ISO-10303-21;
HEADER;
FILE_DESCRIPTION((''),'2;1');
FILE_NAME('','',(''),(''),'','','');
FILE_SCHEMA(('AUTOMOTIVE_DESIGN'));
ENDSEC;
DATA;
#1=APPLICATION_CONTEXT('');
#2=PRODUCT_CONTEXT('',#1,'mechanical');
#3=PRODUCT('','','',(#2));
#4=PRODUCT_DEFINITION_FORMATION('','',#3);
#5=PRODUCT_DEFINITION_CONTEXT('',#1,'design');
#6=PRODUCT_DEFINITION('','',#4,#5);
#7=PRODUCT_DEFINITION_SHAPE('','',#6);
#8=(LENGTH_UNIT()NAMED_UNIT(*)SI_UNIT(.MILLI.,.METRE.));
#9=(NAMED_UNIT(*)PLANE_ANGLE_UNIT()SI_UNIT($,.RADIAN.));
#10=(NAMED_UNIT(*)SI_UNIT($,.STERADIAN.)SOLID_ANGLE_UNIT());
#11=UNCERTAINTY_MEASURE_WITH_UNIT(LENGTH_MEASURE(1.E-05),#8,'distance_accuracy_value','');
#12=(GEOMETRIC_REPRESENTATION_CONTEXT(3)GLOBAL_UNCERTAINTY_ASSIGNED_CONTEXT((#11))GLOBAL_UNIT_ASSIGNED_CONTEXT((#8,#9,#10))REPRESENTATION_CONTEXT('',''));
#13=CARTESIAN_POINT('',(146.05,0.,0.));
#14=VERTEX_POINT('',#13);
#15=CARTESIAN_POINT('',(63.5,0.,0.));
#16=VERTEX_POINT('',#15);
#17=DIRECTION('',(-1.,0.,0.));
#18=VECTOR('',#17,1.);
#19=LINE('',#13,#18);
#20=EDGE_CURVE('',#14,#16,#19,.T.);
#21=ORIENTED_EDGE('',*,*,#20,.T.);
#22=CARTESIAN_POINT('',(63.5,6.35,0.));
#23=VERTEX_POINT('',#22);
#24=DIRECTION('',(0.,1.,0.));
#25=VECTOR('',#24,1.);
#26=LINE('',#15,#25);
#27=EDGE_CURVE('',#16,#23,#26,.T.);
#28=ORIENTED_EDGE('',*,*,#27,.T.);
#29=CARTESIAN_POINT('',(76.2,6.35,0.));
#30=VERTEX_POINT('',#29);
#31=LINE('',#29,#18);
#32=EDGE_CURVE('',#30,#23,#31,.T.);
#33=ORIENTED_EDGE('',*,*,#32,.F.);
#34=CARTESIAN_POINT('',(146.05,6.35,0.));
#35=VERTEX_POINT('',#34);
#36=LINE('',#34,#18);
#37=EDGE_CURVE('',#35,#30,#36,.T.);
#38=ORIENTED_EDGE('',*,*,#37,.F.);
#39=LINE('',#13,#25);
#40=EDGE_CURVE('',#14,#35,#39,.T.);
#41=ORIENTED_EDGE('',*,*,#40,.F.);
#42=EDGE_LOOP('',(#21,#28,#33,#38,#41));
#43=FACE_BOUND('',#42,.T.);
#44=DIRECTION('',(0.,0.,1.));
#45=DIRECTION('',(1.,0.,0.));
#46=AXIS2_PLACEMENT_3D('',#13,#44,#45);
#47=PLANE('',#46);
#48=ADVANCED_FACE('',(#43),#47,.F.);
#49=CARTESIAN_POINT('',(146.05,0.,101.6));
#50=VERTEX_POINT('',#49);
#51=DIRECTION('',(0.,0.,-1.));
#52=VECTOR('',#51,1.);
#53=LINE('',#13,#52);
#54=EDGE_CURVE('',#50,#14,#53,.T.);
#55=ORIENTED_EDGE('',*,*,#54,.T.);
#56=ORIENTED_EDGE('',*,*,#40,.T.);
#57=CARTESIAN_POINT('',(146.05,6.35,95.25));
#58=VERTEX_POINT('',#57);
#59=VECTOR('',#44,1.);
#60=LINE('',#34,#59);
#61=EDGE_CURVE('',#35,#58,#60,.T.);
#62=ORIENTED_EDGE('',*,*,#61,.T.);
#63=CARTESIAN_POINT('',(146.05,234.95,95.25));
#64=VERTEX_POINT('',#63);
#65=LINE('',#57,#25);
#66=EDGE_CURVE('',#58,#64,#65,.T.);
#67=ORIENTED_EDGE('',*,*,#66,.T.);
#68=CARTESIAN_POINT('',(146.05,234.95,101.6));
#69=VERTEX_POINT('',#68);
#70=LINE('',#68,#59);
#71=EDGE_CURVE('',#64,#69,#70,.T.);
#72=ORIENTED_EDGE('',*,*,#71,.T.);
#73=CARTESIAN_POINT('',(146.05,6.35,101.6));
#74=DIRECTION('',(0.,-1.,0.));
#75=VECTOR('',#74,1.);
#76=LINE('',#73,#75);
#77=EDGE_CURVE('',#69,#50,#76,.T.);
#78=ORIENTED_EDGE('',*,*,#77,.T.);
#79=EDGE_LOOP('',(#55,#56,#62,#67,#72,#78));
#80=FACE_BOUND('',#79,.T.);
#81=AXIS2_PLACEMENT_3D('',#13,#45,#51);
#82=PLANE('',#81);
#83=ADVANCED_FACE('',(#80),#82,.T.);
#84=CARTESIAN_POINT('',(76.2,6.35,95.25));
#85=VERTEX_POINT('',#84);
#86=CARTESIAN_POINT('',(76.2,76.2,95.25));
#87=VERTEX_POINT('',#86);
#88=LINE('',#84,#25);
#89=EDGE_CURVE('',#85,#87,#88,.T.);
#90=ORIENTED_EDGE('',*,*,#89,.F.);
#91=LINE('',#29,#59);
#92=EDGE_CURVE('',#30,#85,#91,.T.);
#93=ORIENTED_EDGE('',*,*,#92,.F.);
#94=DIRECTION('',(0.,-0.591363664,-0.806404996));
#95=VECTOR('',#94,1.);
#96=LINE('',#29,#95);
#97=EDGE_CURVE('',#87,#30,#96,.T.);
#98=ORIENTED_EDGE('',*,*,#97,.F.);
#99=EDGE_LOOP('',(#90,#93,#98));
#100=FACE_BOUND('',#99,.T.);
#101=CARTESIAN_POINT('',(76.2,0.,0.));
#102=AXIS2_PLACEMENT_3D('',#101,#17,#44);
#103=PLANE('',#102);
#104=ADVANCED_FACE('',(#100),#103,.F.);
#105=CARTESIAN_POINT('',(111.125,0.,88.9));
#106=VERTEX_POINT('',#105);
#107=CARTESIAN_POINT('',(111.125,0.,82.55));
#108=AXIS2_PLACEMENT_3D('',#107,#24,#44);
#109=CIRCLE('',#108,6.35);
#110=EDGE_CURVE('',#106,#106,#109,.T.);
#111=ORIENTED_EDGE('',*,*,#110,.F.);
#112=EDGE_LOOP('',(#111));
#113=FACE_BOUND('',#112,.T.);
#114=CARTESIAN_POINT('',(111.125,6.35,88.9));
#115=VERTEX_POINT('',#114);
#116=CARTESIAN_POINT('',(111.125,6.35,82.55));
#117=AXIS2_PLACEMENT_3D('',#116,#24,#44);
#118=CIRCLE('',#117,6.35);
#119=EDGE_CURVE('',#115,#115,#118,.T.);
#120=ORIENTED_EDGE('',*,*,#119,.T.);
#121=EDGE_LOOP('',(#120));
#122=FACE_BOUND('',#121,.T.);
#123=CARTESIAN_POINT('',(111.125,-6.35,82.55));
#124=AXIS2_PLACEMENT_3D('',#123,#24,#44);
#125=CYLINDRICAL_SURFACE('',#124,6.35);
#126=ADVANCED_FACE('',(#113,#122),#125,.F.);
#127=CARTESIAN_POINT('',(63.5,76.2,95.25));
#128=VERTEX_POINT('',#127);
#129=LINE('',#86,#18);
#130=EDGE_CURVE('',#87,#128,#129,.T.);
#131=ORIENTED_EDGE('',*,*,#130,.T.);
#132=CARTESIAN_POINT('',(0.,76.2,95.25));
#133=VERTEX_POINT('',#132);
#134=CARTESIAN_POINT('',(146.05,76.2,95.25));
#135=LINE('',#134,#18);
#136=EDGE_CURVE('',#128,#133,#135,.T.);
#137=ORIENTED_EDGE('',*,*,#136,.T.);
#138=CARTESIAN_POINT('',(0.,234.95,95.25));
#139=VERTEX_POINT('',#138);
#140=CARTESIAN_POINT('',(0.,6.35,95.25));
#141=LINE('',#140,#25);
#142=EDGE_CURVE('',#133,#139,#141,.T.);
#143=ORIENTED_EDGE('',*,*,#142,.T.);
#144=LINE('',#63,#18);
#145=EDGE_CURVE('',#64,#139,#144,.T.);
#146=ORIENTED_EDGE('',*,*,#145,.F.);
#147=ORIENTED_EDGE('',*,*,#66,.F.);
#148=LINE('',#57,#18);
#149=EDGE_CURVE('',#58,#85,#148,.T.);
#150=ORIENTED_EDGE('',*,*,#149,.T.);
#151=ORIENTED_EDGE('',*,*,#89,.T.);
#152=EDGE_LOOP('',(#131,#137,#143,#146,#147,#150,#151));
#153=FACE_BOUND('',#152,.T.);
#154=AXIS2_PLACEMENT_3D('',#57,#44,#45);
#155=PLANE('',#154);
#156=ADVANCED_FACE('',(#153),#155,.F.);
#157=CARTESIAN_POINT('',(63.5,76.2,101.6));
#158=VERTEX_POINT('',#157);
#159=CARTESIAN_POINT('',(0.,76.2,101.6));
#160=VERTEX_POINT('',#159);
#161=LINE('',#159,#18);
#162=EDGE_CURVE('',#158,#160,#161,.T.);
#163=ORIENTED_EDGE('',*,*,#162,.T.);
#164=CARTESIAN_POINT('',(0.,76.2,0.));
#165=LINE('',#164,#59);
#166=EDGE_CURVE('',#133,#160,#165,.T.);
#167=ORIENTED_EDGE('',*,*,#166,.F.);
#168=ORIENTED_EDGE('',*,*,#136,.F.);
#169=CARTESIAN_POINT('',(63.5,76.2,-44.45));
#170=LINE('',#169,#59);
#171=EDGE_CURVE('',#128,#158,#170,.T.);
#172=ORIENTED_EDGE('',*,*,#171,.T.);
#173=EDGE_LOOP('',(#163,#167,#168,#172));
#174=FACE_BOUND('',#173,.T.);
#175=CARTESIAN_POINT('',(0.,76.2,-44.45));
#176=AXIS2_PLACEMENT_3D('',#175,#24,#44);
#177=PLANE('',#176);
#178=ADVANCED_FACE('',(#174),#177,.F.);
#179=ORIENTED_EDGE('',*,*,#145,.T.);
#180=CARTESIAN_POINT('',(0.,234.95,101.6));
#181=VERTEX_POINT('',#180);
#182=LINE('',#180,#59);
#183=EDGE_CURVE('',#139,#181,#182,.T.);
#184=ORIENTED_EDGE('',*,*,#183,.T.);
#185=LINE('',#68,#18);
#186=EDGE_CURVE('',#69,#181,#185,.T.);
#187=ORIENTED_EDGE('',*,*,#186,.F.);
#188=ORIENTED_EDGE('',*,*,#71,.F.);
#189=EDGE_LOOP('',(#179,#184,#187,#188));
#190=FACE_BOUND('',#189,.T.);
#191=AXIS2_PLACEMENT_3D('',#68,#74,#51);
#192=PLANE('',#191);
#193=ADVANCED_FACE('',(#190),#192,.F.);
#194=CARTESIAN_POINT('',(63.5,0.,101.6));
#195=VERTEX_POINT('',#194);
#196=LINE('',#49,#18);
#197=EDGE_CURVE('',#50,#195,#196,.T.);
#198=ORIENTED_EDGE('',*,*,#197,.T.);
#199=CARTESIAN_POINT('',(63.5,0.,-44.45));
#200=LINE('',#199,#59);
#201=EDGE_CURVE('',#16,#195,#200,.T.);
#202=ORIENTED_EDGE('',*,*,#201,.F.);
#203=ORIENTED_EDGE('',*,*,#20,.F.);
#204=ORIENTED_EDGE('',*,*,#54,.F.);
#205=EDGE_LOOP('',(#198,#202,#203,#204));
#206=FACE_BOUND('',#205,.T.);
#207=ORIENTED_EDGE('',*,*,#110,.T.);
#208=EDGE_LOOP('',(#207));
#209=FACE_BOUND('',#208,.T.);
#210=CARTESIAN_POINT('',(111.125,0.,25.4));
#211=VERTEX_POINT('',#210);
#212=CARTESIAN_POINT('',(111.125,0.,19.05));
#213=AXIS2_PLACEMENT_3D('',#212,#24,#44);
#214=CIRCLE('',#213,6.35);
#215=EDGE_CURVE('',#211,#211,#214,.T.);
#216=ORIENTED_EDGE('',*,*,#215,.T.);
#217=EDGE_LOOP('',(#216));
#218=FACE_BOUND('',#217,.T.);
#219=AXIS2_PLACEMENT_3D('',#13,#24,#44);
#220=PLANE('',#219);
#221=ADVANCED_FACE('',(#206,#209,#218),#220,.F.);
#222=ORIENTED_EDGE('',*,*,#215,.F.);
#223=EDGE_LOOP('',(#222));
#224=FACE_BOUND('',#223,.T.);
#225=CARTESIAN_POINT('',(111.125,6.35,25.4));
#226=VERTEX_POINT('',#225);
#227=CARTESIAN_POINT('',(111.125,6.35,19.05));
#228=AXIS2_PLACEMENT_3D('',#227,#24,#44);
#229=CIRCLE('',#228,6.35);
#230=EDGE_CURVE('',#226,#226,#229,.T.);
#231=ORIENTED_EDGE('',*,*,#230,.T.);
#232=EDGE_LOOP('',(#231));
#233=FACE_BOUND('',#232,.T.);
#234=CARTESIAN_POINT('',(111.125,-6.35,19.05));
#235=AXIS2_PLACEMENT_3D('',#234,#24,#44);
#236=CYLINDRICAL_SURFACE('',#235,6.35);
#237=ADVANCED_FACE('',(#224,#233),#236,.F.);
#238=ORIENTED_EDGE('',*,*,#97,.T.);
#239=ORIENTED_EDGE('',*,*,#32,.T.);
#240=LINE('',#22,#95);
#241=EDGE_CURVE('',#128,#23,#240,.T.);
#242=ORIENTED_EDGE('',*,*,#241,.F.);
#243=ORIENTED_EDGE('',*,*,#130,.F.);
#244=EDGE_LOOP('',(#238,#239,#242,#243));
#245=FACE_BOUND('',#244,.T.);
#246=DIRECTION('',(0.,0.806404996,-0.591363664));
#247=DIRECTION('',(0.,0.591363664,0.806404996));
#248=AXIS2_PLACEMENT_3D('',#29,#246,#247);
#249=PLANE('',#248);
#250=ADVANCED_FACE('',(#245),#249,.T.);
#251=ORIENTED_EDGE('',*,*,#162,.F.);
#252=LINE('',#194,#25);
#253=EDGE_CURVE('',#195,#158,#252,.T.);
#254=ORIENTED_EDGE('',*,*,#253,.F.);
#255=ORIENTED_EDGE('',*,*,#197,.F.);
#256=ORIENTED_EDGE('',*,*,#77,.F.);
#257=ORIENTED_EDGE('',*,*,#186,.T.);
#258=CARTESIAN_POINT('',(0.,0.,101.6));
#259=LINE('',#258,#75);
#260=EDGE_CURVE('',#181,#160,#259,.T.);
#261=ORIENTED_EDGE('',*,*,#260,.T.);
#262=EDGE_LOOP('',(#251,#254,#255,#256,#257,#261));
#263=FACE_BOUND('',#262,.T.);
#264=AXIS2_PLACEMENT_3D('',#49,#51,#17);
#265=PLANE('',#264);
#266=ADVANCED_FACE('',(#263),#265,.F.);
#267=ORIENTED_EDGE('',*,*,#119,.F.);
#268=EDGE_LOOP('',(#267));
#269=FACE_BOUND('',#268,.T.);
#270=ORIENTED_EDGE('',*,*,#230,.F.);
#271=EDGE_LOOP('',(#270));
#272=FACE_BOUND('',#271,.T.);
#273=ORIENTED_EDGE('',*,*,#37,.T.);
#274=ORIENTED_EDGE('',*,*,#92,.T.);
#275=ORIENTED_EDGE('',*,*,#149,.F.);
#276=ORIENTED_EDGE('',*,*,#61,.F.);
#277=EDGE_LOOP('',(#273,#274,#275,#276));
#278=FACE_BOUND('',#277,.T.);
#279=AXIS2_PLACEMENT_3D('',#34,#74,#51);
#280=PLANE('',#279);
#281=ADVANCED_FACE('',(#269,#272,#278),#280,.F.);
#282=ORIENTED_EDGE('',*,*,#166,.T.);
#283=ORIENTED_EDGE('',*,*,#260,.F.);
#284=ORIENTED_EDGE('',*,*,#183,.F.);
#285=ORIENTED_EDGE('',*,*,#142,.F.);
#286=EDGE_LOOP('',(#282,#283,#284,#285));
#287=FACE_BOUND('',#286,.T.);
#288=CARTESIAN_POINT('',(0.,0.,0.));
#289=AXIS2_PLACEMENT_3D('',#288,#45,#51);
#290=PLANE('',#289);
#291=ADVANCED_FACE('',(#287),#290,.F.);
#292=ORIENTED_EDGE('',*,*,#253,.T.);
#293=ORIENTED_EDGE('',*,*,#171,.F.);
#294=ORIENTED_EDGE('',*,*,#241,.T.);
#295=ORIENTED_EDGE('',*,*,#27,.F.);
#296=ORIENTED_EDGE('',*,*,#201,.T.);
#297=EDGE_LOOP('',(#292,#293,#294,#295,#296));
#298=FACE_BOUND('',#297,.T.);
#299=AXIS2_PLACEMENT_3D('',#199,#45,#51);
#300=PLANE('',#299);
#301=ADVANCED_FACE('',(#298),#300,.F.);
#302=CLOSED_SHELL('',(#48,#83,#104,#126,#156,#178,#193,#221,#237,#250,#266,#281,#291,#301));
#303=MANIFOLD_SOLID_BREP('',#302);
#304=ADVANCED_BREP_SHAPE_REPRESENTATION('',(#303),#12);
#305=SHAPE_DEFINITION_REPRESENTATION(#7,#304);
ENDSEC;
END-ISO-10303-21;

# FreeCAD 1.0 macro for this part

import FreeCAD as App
import Part
import Sketcher
from FreeCAD import Vector
Q = App.Units.Quantity


def add_polygon(sketch, points):
    """Adds a closed chain of lines whose ends are joined by coincident constraints."""
    first, n = sketch.GeometryCount, len(points)
    for a, b in zip(points, points[1:] + points[:1]):
        sketch.addGeometry(Part.LineSegment(App.Vector(*a, 0), App.Vector(*b, 0)), False)
    for i in range(n):
        sketch.addConstraint(Sketcher.Constraint("Coincident", first + i, 2, first + (i + 1) % n, 1))

doc = App.newDocument("Part")
body = doc.addObject("PartDesign::Body", "Body")

sketch1 = body.newObject("Sketcher::SketchObject", "Sketch")
sketch1.AttachmentSupport = (doc.getObject("YZ_Plane"), [""])
sketch1.MapMode = "FlatFace"
add_polygon(sketch1, [(0, 102), (0, 0), (6, 0), (6, 95), (235, 95), (235, 102)])
sketch1.addConstraint(Sketcher.Constraint("Vertical", 0))
sketch1.addConstraint(Sketcher.Constraint("Horizontal", 1))
sketch1.addConstraint(Sketcher.Constraint("Vertical", 2))
sketch1.addConstraint(Sketcher.Constraint("Horizontal", 3))
sketch1.addConstraint(Sketcher.Constraint("Vertical", 4))
sketch1.addConstraint(Sketcher.Constraint("Horizontal", 5))
sketch1.addConstraint(Sketcher.Constraint("Coincident", 0, 2, -1, 1))
sketch1.addConstraint(Sketcher.Constraint("Equal", 1, 4))
sketch1.addConstraint(Sketcher.Constraint("DistanceX", 3, 1, 3, 2, Q("9 in")))
sketch1.addConstraint(Sketcher.Constraint("DistanceY", 0, 2, 0, 1, Q("4 in")))
sketch1.addConstraint(Sketcher.Constraint("DistanceX", 1, 1, 1, 2, Q("0.25 in")))
pad1 = body.newObject("PartDesign::Pad", "Pad")
pad1.Profile = sketch1
pad1.Length = Q("5.75 in")

sketch2 = body.newObject("Sketcher::SketchObject", "Sketch001")
sketch2.AttachmentSupport = (doc.getObject("XY_Plane"), [""])
sketch2.MapMode = "FlatFace"
sketch2.AttachmentOffset = App.Placement(Vector(0, 0, 4 * 25.4), App.Rotation())
add_polygon(sketch2, [(0, 76), (0, 0), (64, 0), (64, 76)])
sketch2.addConstraint(Sketcher.Constraint("Vertical", 0))
sketch2.addConstraint(Sketcher.Constraint("Horizontal", 1))
sketch2.addConstraint(Sketcher.Constraint("Vertical", 2))
sketch2.addConstraint(Sketcher.Constraint("Horizontal", 3))
sketch2.addConstraint(Sketcher.Constraint("Coincident", 0, 2, -1, 1))
sketch2.addConstraint(Sketcher.Constraint("DistanceY", 0, 2, 0, 1, Q("3 in")))
sketch2.addConstraint(Sketcher.Constraint("DistanceX", 1, 1, 1, 2, Q("2.5 in")))
pocket1 = body.newObject("PartDesign::Pocket", "Pocket")
pocket1.Profile = sketch2
pocket1.Length = Q("5.75 in")

sketch3 = body.newObject("Sketcher::SketchObject", "Sketch002")
sketch3.AttachmentSupport = (doc.getObject("YZ_Plane"), [""])
sketch3.MapMode = "FlatFace"
sketch3.AttachmentOffset = App.Placement(Vector(0, 0, 2.5 * 25.4), App.Rotation())
add_polygon(sketch3, [(76, 95), (6, 0), (6, 95)])
sketch3.addConstraint(Sketcher.Constraint("Vertical", 1))
sketch3.addConstraint(Sketcher.Constraint("Horizontal", 2))
sketch3.addConstraint(Sketcher.Constraint("PointOnObject", 0, 2, -1))
sketch3.addConstraint(Sketcher.Constraint("DistanceX", -1, 1, 2, 2, Q("3 in")))
sketch3.addConstraint(Sketcher.Constraint("DistanceX", 2, 1, 2, 2, Q("2.75 in")))
sketch3.addConstraint(Sketcher.Constraint("DistanceY", 1, 1, 1, 2, Q("3.75 in")))
pad2 = body.newObject("PartDesign::Pad", "Pad001")
pad2.Profile = sketch3
pad2.Length = Q("0.5 in")

sketch4 = body.newObject("Sketcher::SketchObject", "Sketch003")
sketch4.AttachmentSupport = (doc.getObject("XZ_Plane"), [""])
sketch4.MapMode = "FlatFace"
sketch4.AttachmentOffset = App.Placement(Vector(0, 0, -0.25 * 25.4), App.Rotation())
sketch4.addGeometry(Part.Circle(Vector(111, 19, 0), Vector(0, 0, 1), 6), False)
sketch4.addGeometry(Part.Circle(Vector(111, 83, 0), Vector(0, 0, 1), 6), False)
sketch4.addConstraint(Sketcher.Constraint("Equal", 0, 1))
sketch4.addConstraint(Sketcher.Constraint("Vertical", 0, 3, 1, 3))
sketch4.addConstraint(Sketcher.Constraint("Diameter", 0, Q("0.5 in")))
sketch4.addConstraint(Sketcher.Constraint("DistanceY", 0, 3, 1, 3, Q("2.5 in")))
sketch4.addConstraint(Sketcher.Constraint("DistanceY", -1, 1, 0, 3, Q("0.75 in")))
sketch4.addConstraint(Sketcher.Constraint("DistanceX", -1, 1, 0, 3, Q("4.375 in")))
pocket2 = body.newObject("PartDesign::Pocket", "Pocket001")
pocket2.Profile = sketch4
pocket2.Length = Q("0.5 in")
pocket2.Reversed = True

doc.recompute()
